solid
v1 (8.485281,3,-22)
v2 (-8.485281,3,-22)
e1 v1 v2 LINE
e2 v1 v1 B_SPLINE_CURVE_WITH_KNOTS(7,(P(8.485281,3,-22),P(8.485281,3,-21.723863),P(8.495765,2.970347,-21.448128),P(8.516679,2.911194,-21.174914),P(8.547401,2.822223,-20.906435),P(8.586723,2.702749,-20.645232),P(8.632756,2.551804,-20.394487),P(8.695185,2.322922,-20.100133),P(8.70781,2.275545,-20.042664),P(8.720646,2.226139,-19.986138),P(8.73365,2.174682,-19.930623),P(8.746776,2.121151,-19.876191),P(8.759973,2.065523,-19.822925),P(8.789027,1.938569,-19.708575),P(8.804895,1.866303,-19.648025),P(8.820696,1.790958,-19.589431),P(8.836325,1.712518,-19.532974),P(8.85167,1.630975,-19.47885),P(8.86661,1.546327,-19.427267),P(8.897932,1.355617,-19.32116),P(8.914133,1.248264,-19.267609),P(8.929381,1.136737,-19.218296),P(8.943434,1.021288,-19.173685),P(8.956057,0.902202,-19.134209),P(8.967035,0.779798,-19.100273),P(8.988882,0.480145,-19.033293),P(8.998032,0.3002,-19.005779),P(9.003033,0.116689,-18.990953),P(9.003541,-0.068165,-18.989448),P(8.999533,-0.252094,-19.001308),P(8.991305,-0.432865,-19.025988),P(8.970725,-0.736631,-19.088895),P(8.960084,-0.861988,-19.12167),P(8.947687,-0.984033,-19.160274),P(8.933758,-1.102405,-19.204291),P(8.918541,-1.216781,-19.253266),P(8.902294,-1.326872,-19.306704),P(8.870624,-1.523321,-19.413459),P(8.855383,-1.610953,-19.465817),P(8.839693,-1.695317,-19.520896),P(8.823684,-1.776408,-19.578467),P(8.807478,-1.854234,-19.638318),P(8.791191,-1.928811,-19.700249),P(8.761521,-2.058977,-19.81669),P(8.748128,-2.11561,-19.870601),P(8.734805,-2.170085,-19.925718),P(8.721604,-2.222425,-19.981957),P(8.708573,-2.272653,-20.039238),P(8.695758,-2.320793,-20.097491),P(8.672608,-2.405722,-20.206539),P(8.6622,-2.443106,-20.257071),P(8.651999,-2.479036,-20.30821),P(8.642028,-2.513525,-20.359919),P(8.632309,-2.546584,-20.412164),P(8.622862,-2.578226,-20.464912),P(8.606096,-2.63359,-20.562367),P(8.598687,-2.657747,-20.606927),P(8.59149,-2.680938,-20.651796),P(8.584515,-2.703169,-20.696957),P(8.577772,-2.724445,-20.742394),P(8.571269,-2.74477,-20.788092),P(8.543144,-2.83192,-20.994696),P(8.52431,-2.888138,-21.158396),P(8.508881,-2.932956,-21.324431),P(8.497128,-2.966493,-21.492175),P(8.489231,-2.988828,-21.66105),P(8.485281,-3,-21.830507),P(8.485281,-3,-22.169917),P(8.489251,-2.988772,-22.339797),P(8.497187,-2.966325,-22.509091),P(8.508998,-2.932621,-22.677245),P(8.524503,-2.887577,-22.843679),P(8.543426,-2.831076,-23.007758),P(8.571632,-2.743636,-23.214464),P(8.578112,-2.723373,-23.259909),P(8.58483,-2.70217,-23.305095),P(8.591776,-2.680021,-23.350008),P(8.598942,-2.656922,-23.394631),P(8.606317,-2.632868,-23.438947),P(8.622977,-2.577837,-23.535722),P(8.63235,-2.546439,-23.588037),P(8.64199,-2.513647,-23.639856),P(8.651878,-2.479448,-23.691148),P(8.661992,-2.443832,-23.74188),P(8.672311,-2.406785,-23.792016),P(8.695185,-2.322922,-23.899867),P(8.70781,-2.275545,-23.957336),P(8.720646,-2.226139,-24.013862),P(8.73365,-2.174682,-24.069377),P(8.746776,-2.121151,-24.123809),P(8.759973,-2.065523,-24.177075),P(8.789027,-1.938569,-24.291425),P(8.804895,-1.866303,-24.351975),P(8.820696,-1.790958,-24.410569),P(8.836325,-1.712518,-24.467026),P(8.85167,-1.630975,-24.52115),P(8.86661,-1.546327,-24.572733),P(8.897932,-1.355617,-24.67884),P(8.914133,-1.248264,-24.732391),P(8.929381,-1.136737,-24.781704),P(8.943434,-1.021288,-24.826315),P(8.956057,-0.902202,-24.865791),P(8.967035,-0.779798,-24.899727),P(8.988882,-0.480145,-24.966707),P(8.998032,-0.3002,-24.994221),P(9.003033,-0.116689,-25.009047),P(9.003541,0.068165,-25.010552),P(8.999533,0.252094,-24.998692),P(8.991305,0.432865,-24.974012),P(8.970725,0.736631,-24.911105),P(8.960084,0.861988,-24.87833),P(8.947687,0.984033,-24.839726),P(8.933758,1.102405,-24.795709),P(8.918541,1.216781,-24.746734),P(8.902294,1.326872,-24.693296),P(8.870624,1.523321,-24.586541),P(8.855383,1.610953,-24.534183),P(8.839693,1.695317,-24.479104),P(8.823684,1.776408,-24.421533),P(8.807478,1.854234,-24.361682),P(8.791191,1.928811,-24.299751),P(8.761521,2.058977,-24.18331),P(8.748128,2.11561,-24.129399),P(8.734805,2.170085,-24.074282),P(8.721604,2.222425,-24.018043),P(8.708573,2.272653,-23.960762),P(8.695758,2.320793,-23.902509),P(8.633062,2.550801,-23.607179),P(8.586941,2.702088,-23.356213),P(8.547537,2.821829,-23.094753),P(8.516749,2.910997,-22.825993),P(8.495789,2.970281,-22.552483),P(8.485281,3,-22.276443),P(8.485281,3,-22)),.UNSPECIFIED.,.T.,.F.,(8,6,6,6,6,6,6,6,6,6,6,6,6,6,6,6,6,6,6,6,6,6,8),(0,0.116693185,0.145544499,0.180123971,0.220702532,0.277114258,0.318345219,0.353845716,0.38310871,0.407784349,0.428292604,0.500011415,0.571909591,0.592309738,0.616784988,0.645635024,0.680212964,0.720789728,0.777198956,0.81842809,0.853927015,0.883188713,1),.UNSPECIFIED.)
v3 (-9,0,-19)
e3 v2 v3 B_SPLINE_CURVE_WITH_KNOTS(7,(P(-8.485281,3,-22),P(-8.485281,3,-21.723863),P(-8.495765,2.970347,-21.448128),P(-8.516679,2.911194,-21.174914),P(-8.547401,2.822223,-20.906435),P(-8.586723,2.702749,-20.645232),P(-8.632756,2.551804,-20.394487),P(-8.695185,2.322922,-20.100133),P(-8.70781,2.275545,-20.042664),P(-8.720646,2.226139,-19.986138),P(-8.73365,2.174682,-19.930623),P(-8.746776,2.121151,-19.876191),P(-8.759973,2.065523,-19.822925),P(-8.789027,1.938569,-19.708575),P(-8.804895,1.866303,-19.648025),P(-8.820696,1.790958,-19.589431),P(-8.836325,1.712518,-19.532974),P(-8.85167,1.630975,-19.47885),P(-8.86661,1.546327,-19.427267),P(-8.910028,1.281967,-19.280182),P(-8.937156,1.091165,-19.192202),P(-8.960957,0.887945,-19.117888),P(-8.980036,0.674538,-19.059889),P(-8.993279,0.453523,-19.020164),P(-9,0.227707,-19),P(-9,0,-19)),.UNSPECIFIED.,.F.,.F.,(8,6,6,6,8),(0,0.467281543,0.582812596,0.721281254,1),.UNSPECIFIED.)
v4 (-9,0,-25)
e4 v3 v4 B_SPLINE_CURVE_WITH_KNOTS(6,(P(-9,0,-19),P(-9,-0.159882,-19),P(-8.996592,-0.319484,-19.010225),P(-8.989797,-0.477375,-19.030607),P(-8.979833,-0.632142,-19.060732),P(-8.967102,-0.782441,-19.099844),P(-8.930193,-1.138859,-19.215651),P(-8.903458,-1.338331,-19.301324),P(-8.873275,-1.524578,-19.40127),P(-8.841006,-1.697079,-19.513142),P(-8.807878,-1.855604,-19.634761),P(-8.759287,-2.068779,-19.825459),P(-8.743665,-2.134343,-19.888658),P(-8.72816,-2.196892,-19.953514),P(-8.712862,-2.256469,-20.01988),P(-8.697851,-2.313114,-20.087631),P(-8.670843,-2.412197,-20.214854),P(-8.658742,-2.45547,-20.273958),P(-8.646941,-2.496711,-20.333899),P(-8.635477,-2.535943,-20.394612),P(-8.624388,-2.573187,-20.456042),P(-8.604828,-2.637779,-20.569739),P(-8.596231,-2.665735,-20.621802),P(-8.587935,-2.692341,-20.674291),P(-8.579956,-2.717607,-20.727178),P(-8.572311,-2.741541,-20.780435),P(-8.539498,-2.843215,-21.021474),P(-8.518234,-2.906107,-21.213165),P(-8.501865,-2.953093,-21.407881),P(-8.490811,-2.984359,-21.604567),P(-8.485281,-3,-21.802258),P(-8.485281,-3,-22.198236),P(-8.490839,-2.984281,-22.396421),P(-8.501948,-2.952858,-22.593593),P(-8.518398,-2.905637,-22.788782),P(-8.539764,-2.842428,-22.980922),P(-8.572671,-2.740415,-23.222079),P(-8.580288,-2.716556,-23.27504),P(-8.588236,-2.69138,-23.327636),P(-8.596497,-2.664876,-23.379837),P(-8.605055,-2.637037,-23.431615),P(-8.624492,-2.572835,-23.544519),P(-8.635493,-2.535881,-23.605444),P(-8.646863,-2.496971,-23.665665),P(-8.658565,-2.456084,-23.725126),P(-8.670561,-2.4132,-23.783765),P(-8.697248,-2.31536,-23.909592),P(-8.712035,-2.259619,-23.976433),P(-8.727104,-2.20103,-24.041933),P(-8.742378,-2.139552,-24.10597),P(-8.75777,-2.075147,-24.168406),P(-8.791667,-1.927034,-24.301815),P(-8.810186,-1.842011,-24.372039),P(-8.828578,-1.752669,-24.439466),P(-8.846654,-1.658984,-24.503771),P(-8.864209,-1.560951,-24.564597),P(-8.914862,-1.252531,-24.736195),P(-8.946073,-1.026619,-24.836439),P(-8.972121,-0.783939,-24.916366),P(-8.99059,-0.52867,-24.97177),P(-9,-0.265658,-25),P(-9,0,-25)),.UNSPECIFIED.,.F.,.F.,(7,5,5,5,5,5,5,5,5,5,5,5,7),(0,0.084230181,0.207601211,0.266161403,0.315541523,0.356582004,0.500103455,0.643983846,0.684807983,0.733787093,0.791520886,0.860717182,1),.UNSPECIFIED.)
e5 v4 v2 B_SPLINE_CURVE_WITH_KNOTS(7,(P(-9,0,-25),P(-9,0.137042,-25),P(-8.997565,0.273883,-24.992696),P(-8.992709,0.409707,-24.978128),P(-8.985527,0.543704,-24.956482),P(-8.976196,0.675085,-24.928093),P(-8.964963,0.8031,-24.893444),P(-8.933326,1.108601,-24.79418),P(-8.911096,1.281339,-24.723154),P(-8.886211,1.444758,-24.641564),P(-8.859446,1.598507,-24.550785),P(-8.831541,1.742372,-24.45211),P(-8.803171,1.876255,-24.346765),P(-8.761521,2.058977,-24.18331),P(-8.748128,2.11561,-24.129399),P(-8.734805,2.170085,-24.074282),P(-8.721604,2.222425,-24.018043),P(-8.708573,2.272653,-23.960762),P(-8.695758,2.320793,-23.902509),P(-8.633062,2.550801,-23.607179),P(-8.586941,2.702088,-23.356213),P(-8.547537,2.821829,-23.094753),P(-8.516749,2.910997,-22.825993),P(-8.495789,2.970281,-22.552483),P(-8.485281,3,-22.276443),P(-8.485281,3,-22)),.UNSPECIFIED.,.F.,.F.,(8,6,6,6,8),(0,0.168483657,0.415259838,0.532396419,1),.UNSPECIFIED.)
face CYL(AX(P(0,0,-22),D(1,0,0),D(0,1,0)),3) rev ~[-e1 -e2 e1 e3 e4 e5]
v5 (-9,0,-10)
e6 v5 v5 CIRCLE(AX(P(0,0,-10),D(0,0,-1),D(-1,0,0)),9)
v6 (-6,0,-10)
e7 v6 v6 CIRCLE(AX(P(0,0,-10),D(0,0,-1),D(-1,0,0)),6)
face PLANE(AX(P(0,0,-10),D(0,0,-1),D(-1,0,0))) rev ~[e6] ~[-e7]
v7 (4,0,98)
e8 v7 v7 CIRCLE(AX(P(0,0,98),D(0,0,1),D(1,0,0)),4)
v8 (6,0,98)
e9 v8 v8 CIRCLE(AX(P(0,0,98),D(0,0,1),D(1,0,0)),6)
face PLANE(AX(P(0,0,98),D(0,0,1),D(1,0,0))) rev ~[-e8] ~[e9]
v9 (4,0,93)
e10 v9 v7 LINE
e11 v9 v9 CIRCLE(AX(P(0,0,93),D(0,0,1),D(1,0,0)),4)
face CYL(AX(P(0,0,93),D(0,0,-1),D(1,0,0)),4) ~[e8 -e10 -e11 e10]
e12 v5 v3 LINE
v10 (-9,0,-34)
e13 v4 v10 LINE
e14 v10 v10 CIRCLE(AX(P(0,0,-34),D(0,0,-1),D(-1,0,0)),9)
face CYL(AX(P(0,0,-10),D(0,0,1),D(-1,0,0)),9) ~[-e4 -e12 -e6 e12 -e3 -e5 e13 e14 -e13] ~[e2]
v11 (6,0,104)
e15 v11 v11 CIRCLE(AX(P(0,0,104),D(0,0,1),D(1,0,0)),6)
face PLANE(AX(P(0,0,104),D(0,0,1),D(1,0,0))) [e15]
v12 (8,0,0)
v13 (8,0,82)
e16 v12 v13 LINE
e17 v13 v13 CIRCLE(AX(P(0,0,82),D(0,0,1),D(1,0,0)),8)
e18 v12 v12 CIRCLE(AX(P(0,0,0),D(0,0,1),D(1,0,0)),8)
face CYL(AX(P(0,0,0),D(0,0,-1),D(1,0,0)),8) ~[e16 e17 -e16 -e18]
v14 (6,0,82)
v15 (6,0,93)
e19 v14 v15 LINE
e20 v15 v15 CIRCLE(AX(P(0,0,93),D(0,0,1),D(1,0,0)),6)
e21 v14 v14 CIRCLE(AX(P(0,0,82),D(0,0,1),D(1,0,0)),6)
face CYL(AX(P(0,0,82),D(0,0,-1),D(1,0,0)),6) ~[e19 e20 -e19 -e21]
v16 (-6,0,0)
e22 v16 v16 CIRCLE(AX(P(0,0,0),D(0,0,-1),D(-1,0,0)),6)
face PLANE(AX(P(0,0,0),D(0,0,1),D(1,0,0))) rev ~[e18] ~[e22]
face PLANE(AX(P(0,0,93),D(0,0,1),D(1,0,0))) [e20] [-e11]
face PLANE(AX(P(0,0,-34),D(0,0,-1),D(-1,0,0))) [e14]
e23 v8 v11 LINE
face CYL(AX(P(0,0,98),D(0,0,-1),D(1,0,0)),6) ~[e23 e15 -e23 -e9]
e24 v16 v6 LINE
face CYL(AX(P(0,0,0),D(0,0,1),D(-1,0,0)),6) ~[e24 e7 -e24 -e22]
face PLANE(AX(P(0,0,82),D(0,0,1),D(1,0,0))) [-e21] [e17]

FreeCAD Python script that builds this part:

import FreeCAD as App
import Part
import Sketcher

V = App.Vector

doc = App.newDocument("Part")
params = doc.addObject("Spreadsheet::Sheet", "Params")
for row, (alias, value) in enumerate([
    ("sketch1_diameter", "16 mm"),
    ("pad1_length", "82 mm"),
    ("sketch2_diameter", "12 mm"),
    ("pad2_length", "11 mm"),
    ("sketch3_diameter", "8 mm"),
    ("pad3_length", "5 mm"),
    ("sketch4_diameter", "12 mm"),
    ("pad4_length", "6 mm"),
    ("sketch5_diameter", "12 mm"),
    ("pad5_length", "10 mm"),
    ("sketch6_diameter", "18 mm"),
    ("pad6_length", "24 mm"),
    ("sketch7_diameter", "6 mm"),
    ("pocket1_length", "24 mm"),
], start=1):
    params.set(f"A{row}", alias)
    params.set(f"B{row}", "=" + value)
    params.setAlias(f"B{row}", alias)

body = doc.addObject("PartDesign::Body", "Body")

# Sketch on XY plane
sketch1 = body.newObject("Sketcher::SketchObject", "Sketch")
sketch1.AttachmentSupport = (doc.getObject("XY_Plane"), [""])
sketch1.MapMode = "FlatFace"
sketch1.addGeometry(Part.Circle(V(0, 0, 0), V(0, 0, 1), 8), False)
sketch1.addConstraint(Sketcher.Constraint("Coincident", 0, 3, -1, 1))
sketch1.addConstraint(Sketcher.Constraint("Diameter", 0, 16.0))
sketch1.setExpression("Constraints[1]", "Params.sketch1_diameter")
pad1 = body.newObject("PartDesign::Pad", "Pad")
pad1.Profile = sketch1
pad1.setExpression("Length", "Params.pad1_length")

# Sketch on XY plane
sketch2 = body.newObject("Sketcher::SketchObject", "Sketch001")
sketch2.AttachmentSupport = (doc.getObject("XY_Plane"), [""])
sketch2.MapMode = "FlatFace"
sketch2.AttachmentOffset = App.Placement(V(0, 0, 82), App.Rotation())
sketch2.addGeometry(Part.Circle(V(0, 0, 0), V(0, 0, 1), 6), False)
sketch2.addConstraint(Sketcher.Constraint("Coincident", 0, 3, -1, 1))
sketch2.addConstraint(Sketcher.Constraint("Diameter", 0, 12.0))
sketch2.setExpression("Constraints[1]", "Params.sketch2_diameter")
pad2 = body.newObject("PartDesign::Pad", "Pad001")
pad2.Profile = sketch2
pad2.setExpression("Length", "Params.pad2_length")

# Sketch on XY plane
sketch3 = body.newObject("Sketcher::SketchObject", "Sketch002")
sketch3.AttachmentSupport = (doc.getObject("XY_Plane"), [""])
sketch3.MapMode = "FlatFace"
sketch3.AttachmentOffset = App.Placement(V(0, 0, 93), App.Rotation())
sketch3.addGeometry(Part.Circle(V(0, 0, 0), V(0, 0, 1), 4), False)
sketch3.addConstraint(Sketcher.Constraint("Coincident", 0, 3, -1, 1))
sketch3.addConstraint(Sketcher.Constraint("Diameter", 0, 8.0))
sketch3.setExpression("Constraints[1]", "Params.sketch3_diameter")
pad3 = body.newObject("PartDesign::Pad", "Pad002")
pad3.Profile = sketch3
pad3.setExpression("Length", "Params.pad3_length")

# Sketch on XY plane
sketch4 = body.newObject("Sketcher::SketchObject", "Sketch003")
sketch4.AttachmentSupport = (doc.getObject("XY_Plane"), [""])
sketch4.MapMode = "FlatFace"
sketch4.AttachmentOffset = App.Placement(V(0, 0, 98), App.Rotation())
sketch4.addGeometry(Part.Circle(V(0, 0, 0), V(0, 0, 1), 6), False)
sketch4.addConstraint(Sketcher.Constraint("Coincident", 0, 3, -1, 1))
sketch4.addConstraint(Sketcher.Constraint("Diameter", 0, 12.0))
sketch4.setExpression("Constraints[1]", "Params.sketch4_diameter")
pad4 = body.newObject("PartDesign::Pad", "Pad003")
pad4.Profile = sketch4
pad4.setExpression("Length", "Params.pad4_length")

# Sketch on XY plane
sketch5 = body.newObject("Sketcher::SketchObject", "Sketch004")
sketch5.AttachmentSupport = (doc.getObject("XY_Plane"), [""])
sketch5.MapMode = "FlatFace"
sketch5.addGeometry(Part.Circle(V(0, 0, 0), V(0, 0, 1), 6), False)
sketch5.addConstraint(Sketcher.Constraint("Coincident", 0, 3, -1, 1))
sketch5.addConstraint(Sketcher.Constraint("Diameter", 0, 12.0))
sketch5.setExpression("Constraints[1]", "Params.sketch5_diameter")
pad5 = body.newObject("PartDesign::Pad", "Pad004")
pad5.Profile = sketch5
pad5.setExpression("Length", "Params.pad5_length")
pad5.Reversed = True

# Sketch on XY plane
sketch6 = body.newObject("Sketcher::SketchObject", "Sketch005")
sketch6.AttachmentSupport = (doc.getObject("XY_Plane"), [""])
sketch6.MapMode = "FlatFace"
sketch6.AttachmentOffset = App.Placement(V(0, 0, -10), App.Rotation())
sketch6.addGeometry(Part.Circle(V(0, 0, 0), V(0, 0, 1), 9), False)
sketch6.addConstraint(Sketcher.Constraint("Coincident", 0, 3, -1, 1))
sketch6.addConstraint(Sketcher.Constraint("Diameter", 0, 18.0))
sketch6.setExpression("Constraints[1]", "Params.sketch6_diameter")
pad6 = body.newObject("PartDesign::Pad", "Pad005")
pad6.Profile = sketch6
pad6.setExpression("Length", "Params.pad6_length")
pad6.Reversed = True

# Sketch on YZ plane
sketch7 = body.newObject("Sketcher::SketchObject", "Sketch006")
sketch7.AttachmentSupport = (doc.getObject("YZ_Plane"), [""])
sketch7.MapMode = "FlatFace"
sketch7.addGeometry(Part.Circle(V(0, -22, 0), V(0, 0, 1), 3), False)
sketch7.addConstraint(Sketcher.Constraint("PointOnObject", 0, 3, -2))
sketch7.addConstraint(Sketcher.Constraint("Diameter", 0, 6.0))
sketch7.addConstraint(Sketcher.Constraint("DistanceY", 0, 3, -1, 1, 22.0))
sketch7.setExpression("Constraints[1]", "Params.sketch7_diameter")
pocket1 = body.newObject("PartDesign::Pocket", "Pocket")
pocket1.Profile = sketch7
pocket1.setExpression("Length", "Params.pocket1_length")
pocket1.Midplane = True

doc.recompute()
